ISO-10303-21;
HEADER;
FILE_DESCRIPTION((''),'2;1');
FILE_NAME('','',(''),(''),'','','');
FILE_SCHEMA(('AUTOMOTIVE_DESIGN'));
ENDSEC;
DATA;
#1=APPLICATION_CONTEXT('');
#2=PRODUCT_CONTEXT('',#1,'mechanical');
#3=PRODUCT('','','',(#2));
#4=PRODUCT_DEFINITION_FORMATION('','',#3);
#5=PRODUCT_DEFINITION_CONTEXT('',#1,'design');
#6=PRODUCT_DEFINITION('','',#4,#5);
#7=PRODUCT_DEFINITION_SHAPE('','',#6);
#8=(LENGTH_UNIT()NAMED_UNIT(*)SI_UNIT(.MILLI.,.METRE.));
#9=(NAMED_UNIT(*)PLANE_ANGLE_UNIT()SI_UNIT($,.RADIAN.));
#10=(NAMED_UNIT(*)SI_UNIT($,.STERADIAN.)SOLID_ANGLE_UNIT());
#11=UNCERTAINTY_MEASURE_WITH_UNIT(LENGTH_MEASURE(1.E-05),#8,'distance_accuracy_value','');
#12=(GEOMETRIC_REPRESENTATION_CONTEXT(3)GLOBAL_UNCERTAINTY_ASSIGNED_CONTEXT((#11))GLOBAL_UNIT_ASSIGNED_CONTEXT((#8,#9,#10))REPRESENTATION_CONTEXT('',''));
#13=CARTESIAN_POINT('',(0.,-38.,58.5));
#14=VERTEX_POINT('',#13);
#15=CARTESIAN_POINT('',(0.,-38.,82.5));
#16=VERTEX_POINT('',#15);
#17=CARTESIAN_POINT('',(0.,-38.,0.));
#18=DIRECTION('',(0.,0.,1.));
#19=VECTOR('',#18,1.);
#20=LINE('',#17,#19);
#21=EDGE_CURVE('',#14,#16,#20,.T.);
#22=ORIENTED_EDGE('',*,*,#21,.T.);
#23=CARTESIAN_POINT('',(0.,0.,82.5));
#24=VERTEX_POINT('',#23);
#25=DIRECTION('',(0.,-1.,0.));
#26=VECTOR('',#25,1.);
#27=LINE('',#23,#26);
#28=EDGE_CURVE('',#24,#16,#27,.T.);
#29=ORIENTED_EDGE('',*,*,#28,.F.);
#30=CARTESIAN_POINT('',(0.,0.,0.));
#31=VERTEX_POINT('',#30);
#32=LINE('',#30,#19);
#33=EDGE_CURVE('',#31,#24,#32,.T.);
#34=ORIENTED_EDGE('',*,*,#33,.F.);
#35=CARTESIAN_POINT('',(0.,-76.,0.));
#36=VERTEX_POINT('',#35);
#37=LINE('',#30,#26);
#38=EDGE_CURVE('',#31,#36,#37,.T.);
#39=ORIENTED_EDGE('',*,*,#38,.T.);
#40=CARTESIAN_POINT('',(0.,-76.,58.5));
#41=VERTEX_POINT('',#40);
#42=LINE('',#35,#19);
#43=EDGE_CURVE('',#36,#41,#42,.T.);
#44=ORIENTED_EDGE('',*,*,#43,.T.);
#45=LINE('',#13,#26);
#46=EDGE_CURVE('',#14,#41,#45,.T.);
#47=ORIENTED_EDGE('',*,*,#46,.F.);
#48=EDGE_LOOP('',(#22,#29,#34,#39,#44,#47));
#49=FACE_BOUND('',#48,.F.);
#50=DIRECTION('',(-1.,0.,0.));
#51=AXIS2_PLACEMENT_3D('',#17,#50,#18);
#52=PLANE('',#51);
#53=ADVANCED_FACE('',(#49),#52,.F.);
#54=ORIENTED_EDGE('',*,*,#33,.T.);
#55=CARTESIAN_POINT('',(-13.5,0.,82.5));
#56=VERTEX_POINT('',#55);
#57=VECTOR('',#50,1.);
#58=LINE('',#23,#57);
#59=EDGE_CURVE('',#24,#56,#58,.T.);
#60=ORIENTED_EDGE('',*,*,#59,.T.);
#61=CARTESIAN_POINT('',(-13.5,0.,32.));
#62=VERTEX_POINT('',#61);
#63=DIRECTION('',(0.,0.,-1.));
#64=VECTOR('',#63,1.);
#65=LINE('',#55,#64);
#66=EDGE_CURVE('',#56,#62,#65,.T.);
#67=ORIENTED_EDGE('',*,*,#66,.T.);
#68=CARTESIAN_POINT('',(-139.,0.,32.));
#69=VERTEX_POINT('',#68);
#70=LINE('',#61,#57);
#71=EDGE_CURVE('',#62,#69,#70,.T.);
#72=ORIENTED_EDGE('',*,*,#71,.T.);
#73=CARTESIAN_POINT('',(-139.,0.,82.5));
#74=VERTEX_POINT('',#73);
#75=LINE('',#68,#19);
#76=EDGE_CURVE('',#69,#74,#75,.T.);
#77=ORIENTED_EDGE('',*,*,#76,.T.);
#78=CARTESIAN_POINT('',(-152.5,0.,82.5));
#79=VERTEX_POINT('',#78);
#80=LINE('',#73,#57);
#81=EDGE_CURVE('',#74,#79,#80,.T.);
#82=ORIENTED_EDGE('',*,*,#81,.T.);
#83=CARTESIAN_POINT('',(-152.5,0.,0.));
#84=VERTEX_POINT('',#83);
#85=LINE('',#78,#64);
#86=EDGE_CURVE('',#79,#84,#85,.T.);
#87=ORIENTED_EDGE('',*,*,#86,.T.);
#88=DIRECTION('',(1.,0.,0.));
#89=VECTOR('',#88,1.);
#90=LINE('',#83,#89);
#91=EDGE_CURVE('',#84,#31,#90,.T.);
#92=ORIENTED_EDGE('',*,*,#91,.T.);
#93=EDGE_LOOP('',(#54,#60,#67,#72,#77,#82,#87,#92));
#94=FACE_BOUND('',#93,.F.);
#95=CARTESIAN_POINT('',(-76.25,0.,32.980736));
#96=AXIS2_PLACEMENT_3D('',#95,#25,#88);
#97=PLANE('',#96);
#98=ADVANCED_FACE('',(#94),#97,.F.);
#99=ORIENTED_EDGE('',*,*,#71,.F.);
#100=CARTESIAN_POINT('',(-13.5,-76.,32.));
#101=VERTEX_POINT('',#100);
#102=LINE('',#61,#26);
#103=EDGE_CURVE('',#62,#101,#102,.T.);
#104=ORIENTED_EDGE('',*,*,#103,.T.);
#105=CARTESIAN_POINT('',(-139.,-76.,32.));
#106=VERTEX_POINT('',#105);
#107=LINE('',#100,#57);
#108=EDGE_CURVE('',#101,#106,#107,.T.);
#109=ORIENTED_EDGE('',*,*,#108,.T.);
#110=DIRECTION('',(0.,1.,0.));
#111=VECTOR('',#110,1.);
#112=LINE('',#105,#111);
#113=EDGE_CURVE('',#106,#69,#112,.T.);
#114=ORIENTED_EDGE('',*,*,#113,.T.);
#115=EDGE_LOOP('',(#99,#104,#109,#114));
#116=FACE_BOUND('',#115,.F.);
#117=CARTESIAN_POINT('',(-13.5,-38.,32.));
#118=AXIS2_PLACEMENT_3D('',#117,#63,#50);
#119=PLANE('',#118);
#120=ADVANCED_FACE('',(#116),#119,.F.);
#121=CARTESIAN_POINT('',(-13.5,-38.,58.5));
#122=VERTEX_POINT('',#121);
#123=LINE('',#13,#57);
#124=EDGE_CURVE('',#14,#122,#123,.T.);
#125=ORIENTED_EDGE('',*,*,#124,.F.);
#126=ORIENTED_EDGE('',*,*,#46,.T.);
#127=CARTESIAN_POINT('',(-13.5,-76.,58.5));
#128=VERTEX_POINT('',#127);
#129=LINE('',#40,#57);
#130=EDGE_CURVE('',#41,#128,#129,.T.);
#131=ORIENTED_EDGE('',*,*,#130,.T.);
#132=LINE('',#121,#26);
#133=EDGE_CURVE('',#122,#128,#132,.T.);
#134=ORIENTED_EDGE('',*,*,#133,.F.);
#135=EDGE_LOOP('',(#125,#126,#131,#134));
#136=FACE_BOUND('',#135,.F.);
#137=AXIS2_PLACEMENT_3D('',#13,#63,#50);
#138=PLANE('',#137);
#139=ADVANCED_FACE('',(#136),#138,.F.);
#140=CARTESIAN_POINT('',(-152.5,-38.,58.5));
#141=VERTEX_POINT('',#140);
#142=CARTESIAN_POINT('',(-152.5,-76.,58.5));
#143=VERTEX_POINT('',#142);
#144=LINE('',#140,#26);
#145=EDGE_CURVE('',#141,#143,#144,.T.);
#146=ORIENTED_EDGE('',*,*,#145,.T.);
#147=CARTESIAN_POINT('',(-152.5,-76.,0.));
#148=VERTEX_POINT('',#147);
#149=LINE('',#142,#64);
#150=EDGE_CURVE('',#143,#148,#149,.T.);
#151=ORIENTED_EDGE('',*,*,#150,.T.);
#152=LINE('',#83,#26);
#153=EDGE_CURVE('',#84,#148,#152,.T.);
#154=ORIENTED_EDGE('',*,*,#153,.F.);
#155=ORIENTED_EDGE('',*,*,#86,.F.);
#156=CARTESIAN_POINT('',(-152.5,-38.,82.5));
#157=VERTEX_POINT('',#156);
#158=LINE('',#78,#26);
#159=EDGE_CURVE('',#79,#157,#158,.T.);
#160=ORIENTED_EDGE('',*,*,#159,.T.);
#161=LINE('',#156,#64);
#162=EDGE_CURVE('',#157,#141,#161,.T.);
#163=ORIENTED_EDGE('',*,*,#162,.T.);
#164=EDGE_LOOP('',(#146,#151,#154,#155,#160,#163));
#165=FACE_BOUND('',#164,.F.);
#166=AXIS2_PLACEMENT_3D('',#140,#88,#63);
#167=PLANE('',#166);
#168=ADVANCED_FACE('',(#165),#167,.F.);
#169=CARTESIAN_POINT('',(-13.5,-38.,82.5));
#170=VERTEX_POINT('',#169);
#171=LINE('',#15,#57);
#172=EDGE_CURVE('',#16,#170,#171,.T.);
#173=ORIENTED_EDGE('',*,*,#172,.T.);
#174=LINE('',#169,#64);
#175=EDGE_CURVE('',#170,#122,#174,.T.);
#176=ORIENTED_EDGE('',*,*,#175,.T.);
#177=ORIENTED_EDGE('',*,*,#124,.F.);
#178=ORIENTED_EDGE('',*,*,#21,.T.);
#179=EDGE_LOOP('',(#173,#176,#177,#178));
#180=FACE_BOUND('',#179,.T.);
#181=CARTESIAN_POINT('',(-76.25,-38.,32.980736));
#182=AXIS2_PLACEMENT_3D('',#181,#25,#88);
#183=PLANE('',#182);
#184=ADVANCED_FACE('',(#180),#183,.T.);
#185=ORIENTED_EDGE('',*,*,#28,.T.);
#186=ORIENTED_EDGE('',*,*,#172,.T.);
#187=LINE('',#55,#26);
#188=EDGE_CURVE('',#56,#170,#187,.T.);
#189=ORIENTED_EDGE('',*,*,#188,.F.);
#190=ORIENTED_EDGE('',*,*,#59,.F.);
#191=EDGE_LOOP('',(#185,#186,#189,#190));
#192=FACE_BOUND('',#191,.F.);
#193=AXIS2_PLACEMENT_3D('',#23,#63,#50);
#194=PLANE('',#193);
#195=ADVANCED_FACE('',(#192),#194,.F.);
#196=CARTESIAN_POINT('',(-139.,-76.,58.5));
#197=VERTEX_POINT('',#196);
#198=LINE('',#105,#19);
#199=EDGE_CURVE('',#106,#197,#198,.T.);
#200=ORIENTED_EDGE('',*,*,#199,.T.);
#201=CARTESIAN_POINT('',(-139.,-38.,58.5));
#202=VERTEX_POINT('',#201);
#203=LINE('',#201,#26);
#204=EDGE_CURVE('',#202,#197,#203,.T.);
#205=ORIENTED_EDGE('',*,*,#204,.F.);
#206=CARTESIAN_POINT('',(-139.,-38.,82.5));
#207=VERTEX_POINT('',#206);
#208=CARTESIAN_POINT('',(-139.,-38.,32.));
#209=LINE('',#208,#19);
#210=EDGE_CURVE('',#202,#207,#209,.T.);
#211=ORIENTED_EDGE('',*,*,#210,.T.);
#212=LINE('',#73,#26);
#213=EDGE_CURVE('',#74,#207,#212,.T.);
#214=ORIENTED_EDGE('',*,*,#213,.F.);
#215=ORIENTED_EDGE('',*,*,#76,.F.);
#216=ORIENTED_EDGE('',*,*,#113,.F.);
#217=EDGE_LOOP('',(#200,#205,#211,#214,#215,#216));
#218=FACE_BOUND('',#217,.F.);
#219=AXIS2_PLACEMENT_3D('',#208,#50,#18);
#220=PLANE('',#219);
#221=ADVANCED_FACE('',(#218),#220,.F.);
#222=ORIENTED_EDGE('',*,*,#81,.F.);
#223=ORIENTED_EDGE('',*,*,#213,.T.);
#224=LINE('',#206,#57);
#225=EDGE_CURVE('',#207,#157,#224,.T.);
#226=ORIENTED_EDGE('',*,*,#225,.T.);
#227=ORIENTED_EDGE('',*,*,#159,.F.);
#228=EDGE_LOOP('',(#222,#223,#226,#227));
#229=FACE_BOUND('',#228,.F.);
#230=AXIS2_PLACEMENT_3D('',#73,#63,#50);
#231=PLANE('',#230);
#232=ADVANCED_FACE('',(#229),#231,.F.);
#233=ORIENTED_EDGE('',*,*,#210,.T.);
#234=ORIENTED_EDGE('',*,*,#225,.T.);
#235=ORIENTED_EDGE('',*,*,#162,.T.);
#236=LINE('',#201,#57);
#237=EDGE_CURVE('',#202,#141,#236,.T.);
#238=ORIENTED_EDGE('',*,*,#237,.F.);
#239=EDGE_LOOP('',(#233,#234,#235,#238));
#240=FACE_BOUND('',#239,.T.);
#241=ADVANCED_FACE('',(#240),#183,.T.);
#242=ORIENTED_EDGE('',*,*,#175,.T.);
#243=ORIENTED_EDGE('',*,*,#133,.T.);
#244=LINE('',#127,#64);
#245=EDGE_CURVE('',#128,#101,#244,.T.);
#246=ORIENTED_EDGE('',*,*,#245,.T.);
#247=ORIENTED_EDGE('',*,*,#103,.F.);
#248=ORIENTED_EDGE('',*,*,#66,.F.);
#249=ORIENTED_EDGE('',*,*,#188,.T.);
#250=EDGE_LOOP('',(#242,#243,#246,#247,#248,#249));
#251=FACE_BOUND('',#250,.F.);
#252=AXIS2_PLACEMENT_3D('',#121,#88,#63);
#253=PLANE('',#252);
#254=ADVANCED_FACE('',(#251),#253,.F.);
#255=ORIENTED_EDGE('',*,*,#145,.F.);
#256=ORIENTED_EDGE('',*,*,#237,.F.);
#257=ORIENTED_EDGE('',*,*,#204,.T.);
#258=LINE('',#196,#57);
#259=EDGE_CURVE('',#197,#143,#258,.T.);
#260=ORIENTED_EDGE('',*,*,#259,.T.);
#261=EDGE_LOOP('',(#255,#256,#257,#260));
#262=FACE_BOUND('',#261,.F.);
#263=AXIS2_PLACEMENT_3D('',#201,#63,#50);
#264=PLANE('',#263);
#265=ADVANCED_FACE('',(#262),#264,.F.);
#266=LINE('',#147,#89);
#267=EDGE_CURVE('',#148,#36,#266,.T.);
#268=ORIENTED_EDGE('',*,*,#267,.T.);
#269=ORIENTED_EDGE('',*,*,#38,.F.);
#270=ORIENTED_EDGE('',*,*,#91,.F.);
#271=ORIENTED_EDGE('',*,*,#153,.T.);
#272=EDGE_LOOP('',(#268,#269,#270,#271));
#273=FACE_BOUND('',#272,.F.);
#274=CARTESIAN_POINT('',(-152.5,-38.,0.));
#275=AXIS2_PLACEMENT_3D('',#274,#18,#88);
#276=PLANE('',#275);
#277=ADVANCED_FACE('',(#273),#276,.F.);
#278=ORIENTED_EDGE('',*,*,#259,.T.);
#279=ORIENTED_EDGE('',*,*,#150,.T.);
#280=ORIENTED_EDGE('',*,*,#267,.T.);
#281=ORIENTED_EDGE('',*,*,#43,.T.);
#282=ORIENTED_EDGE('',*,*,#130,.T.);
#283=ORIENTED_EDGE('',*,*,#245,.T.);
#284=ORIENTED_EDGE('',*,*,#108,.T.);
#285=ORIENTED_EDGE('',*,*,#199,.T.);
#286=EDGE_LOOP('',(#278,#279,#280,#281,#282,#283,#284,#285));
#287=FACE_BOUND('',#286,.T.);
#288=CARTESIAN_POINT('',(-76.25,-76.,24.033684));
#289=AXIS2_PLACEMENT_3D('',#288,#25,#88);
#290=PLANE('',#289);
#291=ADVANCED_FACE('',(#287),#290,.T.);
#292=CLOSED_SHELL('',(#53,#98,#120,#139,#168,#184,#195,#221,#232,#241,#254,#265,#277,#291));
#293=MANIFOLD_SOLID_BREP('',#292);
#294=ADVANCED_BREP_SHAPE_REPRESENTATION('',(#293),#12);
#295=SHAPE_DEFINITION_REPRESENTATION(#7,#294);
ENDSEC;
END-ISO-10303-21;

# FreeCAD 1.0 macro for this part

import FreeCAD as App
import Part
import Sketcher
from FreeCAD import Vector
Q = App.Units.Quantity

doc = App.newDocument("Part")
params = doc.addObject("Spreadsheet::Sheet", "Params")
for row, (alias, value) in enumerate([
    ("sketch1_width", "152.5 mm"),
    ("sketch1_width2", "13.5 mm"),
    ("sketch1_height", "82.5 mm"),
    ("sketch1_height2", "50.5 mm"),
    ("pad1_length", "38 mm"),
    ("sketch2_width", "152.5 mm"),
    ("sketch2_width2", "13.5 mm"),
    ("sketch2_height", "58.5 mm"),
    ("sketch2_height2", "26.5 mm"),
    ("pad2_length", "38 mm"),
], start=1):
    params.set(f"A{row}", alias)
    params.set(f"B{row}", "=" + value)
    params.setAlias(f"B{row}", alias)

body = doc.addObject("PartDesign::Body", "Body")

sketch1 = doc.addObject("Sketcher::SketchObject", "Sketch")
body.addObject(sketch1)
sketch1.AttachmentSupport = (doc.XZ_Plane, [""])
sketch1.MapMode = "FlatFace"
sketch1.addGeometry([
    Part.LineSegment(Vector(-152, 0, 0), Vector(0, 0, 0)),
    Part.LineSegment(Vector(0, 0, 0), Vector(0, 82, 0)),
    Part.LineSegment(Vector(0, 82, 0), Vector(-14, 82, 0)),
    Part.LineSegment(Vector(-14, 82, 0), Vector(-14, 32, 0)),
    Part.LineSegment(Vector(-14, 32, 0), Vector(-139, 32, 0)),
    Part.LineSegment(Vector(-139, 32, 0), Vector(-139, 82, 0)),
    Part.LineSegment(Vector(-139, 82, 0), Vector(-152, 82, 0)),
    Part.LineSegment(Vector(-152, 82, 0), Vector(-152, 0, 0)),
], False)
sketch1.addConstraint([
    Sketcher.Constraint("Coincident", 0, 2, 1, 1),
    Sketcher.Constraint("Coincident", 1, 2, 2, 1),
    Sketcher.Constraint("Coincident", 2, 2, 3, 1),
    Sketcher.Constraint("Coincident", 3, 2, 4, 1),
    Sketcher.Constraint("Coincident", 4, 2, 5, 1),
    Sketcher.Constraint("Coincident", 5, 2, 6, 1),
    Sketcher.Constraint("Coincident", 6, 2, 7, 1),
    Sketcher.Constraint("Coincident", 7, 2, 0, 1),
    Sketcher.Constraint("Horizontal", 0),
    Sketcher.Constraint("Vertical", 1),
    Sketcher.Constraint("Horizontal", 2),
    Sketcher.Constraint("Vertical", 3),
    Sketcher.Constraint("Horizontal", 4),
    Sketcher.Constraint("Vertical", 5),
    Sketcher.Constraint("Horizontal", 6),
    Sketcher.Constraint("Vertical", 7),
    Sketcher.Constraint("Coincident", 0, 2, -1, 1),
    Sketcher.Constraint("Horizontal", 2, 2, 5, 2),
    Sketcher.Constraint("Equal", 2, 6),
    Sketcher.Constraint("DistanceX", 0, 1, 0, 2, Q("152.5 mm")),
    Sketcher.Constraint("DistanceX", 2, 2, 2, 1, Q("13.5 mm")),
    Sketcher.Constraint("DistanceY", 1, 1, 1, 2, Q("82.5 mm")),
    Sketcher.Constraint("DistanceY", 3, 2, 3, 1, Q("50.5 mm")),
])
sketch1.setExpression("Constraints[19]", "Params.sketch1_width")
sketch1.setExpression("Constraints[20]", "Params.sketch1_width2")
sketch1.setExpression("Constraints[21]", "Params.sketch1_height")
sketch1.setExpression("Constraints[22]", "Params.sketch1_height2")
pad1 = doc.addObject("PartDesign::Pad", "Pad")
body.addObject(pad1)
pad1.Profile = sketch1
pad1.setExpression("Length", "Params.pad1_length")

sketch2 = doc.addObject("Sketcher::SketchObject", "Sketch001")
body.addObject(sketch2)
sketch2.AttachmentSupport = (doc.XZ_Plane, [""])
sketch2.MapMode = "FlatFace"
sketch2.AttachmentOffset = App.Placement(Vector(0, 0, 38), App.Rotation())
sketch2.addGeometry([
    Part.LineSegment(Vector(-152, 58, 0), Vector(-152, 0, 0)),
    Part.LineSegment(Vector(-152, 0, 0), Vector(0, 0, 0)),
    Part.LineSegment(Vector(0, 0, 0), Vector(0, 58, 0)),
    Part.LineSegment(Vector(0, 58, 0), Vector(-14, 58, 0)),
    Part.LineSegment(Vector(-14, 58, 0), Vector(-14, 32, 0)),
    Part.LineSegment(Vector(-14, 32, 0), Vector(-139, 32, 0)),
    Part.LineSegment(Vector(-139, 32, 0), Vector(-139, 58, 0)),
    Part.LineSegment(Vector(-139, 58, 0), Vector(-152, 58, 0)),
], False)
sketch2.addConstraint([
    Sketcher.Constraint("Coincident", 0, 2, 1, 1),
    Sketcher.Constraint("Coincident", 1, 2, 2, 1),
    Sketcher.Constraint("Coincident", 2, 2, 3, 1),
    Sketcher.Constraint("Coincident", 3, 2, 4, 1),
    Sketcher.Constraint("Coincident", 4, 2, 5, 1),
    Sketcher.Constraint("Coincident", 5, 2, 6, 1),
    Sketcher.Constraint("Coincident", 6, 2, 7, 1),
    Sketcher.Constraint("Coincident", 7, 2, 0, 1),
    Sketcher.Constraint("Vertical", 0),
    Sketcher.Constraint("Horizontal", 1),
    Sketcher.Constraint("Vertical", 2),
    Sketcher.Constraint("Horizontal", 3),
    Sketcher.Constraint("Vertical", 4),
    Sketcher.Constraint("Horizontal", 5),
    Sketcher.Constraint("Vertical", 6),
    Sketcher.Constraint("Horizontal", 7),
    Sketcher.Constraint("Coincident", 1, 2, -1, 1),
    Sketcher.Constraint("Horizontal", 3, 2, 6, 2),
    Sketcher.Constraint("Equal", 3, 7),
    Sketcher.Constraint("DistanceX", 1, 1, 1, 2, Q("152.5 mm")),
    Sketcher.Constraint("DistanceX", 3, 2, 3, 1, Q("13.5 mm")),
    Sketcher.Constraint("DistanceY", 0, 2, 0, 1, Q("58.5 mm")),
    Sketcher.Constraint("DistanceY", 4, 2, 4, 1, Q("26.5 mm")),
])
sketch2.setExpression("Constraints[19]", "Params.sketch2_width")
sketch2.setExpression("Constraints[20]", "Params.sketch2_width2")
sketch2.setExpression("Constraints[21]", "Params.sketch2_height")
sketch2.setExpression("Constraints[22]", "Params.sketch2_height2")
pad2 = doc.addObject("PartDesign::Pad", "Pad001")
body.addObject(pad2)
pad2.Profile = sketch2
pad2.setExpression("Length", "Params.pad2_length")

doc.recompute()
